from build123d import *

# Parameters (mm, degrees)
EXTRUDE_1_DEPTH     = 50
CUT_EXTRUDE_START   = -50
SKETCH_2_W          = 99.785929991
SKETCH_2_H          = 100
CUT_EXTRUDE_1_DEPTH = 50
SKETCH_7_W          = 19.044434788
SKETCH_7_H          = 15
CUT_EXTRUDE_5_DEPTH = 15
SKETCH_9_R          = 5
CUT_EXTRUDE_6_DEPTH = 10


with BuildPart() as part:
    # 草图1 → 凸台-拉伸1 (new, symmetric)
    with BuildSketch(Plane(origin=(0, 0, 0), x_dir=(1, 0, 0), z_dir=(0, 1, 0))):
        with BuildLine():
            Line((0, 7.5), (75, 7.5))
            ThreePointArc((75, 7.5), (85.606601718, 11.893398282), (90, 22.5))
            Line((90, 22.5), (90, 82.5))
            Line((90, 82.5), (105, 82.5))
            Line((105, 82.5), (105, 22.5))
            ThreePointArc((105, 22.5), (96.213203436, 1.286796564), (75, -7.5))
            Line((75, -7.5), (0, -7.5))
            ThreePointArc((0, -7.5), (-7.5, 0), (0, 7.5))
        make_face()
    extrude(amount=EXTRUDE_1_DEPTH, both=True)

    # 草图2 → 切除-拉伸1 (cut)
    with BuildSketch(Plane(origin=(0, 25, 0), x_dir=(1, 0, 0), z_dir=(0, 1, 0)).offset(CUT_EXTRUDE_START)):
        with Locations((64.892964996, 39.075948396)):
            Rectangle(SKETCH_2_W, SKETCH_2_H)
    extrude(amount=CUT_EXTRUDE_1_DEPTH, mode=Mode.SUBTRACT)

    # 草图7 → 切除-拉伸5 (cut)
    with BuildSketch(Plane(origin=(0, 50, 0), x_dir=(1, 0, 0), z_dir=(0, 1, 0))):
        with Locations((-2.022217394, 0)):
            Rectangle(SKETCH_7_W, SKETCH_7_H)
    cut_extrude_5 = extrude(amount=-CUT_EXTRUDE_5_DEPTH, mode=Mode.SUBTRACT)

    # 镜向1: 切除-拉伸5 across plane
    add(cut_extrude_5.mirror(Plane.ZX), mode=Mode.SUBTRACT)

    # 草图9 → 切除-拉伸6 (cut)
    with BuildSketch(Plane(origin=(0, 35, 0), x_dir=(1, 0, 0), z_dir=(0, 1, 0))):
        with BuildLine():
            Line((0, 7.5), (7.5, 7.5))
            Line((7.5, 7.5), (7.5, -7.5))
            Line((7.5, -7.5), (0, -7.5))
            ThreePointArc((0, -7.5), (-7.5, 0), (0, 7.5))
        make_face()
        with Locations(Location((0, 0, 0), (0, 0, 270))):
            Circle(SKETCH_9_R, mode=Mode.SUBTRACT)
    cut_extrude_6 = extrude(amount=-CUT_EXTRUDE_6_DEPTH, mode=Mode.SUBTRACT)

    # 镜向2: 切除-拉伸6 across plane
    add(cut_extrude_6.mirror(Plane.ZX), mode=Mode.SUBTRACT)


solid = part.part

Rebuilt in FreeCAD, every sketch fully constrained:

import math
import FreeCAD as App
import Part
import Sketcher
from FreeCAD import Vector
Q = App.Units.Quantity


def add_polygon(sketch, points):
    """Adds a closed chain of lines whose ends are joined by coincident constraints."""
    first, n = sketch.GeometryCount, len(points)
    for a, b in zip(points, points[1:] + points[:1]):
        sketch.addGeometry(Part.LineSegment(App.Vector(*a, 0), App.Vector(*b, 0)), False)
    for i in range(n):
        sketch.addConstraint(Sketcher.Constraint("Coincident", first + i, 2, first + (i + 1) % n, 1))

doc = App.newDocument("Part")
body = doc.addObject("PartDesign::Body", "Body")

sketch1 = body.newObject("Sketcher::SketchObject", "Sketch")
sketch1.AttachmentSupport = (doc.getObject("XZ_Plane"), [""])
sketch1.MapMode = "FlatFace"
sketch1.addGeometry([
    Part.LineSegment(Vector(75, -8, 0), Vector(0, -8, 0)),
    Part.ArcOfCircle(Part.Circle(Vector(0, 0, 0), Vector(0, 0, 1), 8), math.radians(90), math.radians(270)),
    Part.LineSegment(Vector(0, 8, 0), Vector(75, 8, 0)),
    Part.ArcOfCircle(Part.Circle(Vector(75, -22, 0), Vector(0, 0, 1), 30), math.radians(0), math.radians(90)),
    Part.LineSegment(Vector(105, -22, 0), Vector(105, -82, 0)),
    Part.LineSegment(Vector(105, -82, 0), Vector(90, -82, 0)),
    Part.LineSegment(Vector(90, -82, 0), Vector(90, -22, 0)),
    Part.ArcOfCircle(Part.Circle(Vector(75, -22, 0), Vector(0, 0, 1), 15), math.radians(0), math.radians(90)),
], False)
sketch1.addConstraint([
    Sketcher.Constraint("Tangent", 0, 2, 1, 2),
    Sketcher.Constraint("Tangent", 1, 1, 2, 1),
    Sketcher.Constraint("Tangent", 2, 2, 3, 2),
    Sketcher.Constraint("Tangent", 3, 1, 4, 1),
    Sketcher.Constraint("Coincident", 4, 2, 5, 1),
    Sketcher.Constraint("Coincident", 5, 2, 6, 1),
    Sketcher.Constraint("Tangent", 6, 2, 7, 1),
    Sketcher.Constraint("Tangent", 7, 2, 0, 1),
    Sketcher.Constraint("Horizontal", 0),
    Sketcher.Constraint("Horizontal", 2),
    Sketcher.Constraint("Vertical", 4),
    Sketcher.Constraint("Horizontal", 5),
    Sketcher.Constraint("Vertical", 6),
    Sketcher.Constraint("Coincident", 1, 3, -1, 1),
    Sketcher.Constraint("Coincident", 7, 3, 3, 3),
    Sketcher.Constraint("Radius", 3, Q("30 mm")),
    Sketcher.Constraint("Radius", 7, Q("15 mm")),
    Sketcher.Constraint("DistanceX", 0, 2, 0, 1, Q("75 mm")),
    Sketcher.Constraint("DistanceY", 4, 2, 4, 1, Q("60 mm")),
])
pad1 = body.newObject("PartDesign::Pad", "Pad")
pad1.Profile = sketch1
pad1.Length = 100
pad1.Midplane = True

sketch2 = body.newObject("Sketcher::SketchObject", "Sketch001")
sketch2.AttachmentSupport = (doc.getObject("XZ_Plane"), [""])
sketch2.MapMode = "FlatFace"
sketch2.AttachmentOffset = App.Placement(Vector(0, 0, 25), App.Rotation())
add_polygon(sketch2, [(15, -89), (15, 11), (115, 11), (115, -89)])
sketch2.addConstraint([
    Sketcher.Constraint("Vertical", 0),
    Sketcher.Constraint("Horizontal", 1),
    Sketcher.Constraint("Vertical", 2),
    Sketcher.Constraint("Horizontal", 3),
    Sketcher.Constraint("DistanceY", 0, 1, 0, 2, Q("100 mm")),
    Sketcher.Constraint("DistanceX", -1, 1, 0, 2, Q("15 mm")),
    Sketcher.Constraint("DistanceX", 1, 1, 1, 2, Q("99.78593 mm")),
    Sketcher.Constraint("DistanceY", -1, 1, 0, 2, Q("10.924052 mm")),
])
pocket1 = body.newObject("PartDesign::Pocket", "Pocket")
pocket1.Profile = sketch2
pocket1.Length = 50

sketch3 = body.newObject("Sketcher::SketchObject", "Sketch002")
sketch3.AttachmentSupport = (doc.getObject("XZ_Plane"), [""])
sketch3.MapMode = "FlatFace"
sketch3.AttachmentOffset = App.Placement(Vector(0, 0, -50), App.Rotation())
add_polygon(sketch3, [(-12, -8), (-12, 8), (8, 8), (8, -8)])
sketch3.addConstraint([
    Sketcher.Constraint("Vertical", 0),
    Sketcher.Constraint("Horizontal", 1),
    Sketcher.Constraint("Vertical", 2),
    Sketcher.Constraint("Horizontal", 3),
    Sketcher.Constraint("DistanceY", 0, 1, 0, 2, Q("15 mm")),
    Sketcher.Constraint("DistanceY", -1, 1, 0, 2, Q("7.5 mm")),
    Sketcher.Constraint("DistanceX", -1, 1, 1, 2, Q("7.5 mm")),
    Sketcher.Constraint("DistanceX", 1, 1, 1, 2, Q("19.044435 mm")),
])
pocket2 = body.newObject("PartDesign::Pocket", "Pocket001")
pocket2.Profile = sketch3
pocket2.Length = 15
pocket2.Reversed = True
doc.recompute()

mirrored = body.newObject("PartDesign::Mirrored", "Mirrored")
mirrored.Originals = [pocket2]
mirrored.MirrorPlane = (doc.getObject("XZ_Plane"), [""])
body.Tip = mirrored

sketch4 = body.newObject("Sketcher::SketchObject", "Sketch003")
sketch4.AttachmentSupport = (doc.getObject("XZ_Plane"), [""])
sketch4.MapMode = "FlatFace"
sketch4.AttachmentOffset = App.Placement(Vector(0, 0, -35), App.Rotation())
sketch4.addGeometry([
    Part.LineSegment(Vector(8, -8, 0), Vector(0, -8, 0)),
    Part.ArcOfCircle(Part.Circle(Vector(0, 0, 0), Vector(0, 0, 1), 8), math.radians(90), math.radians(270)),
    Part.LineSegment(Vector(0, 8, 0), Vector(8, 8, 0)),
    Part.LineSegment(Vector(8, 8, 0), Vector(8, -8, 0)),
    Part.Circle(Vector(0, 0, 0), Vector(0, 0, 1), 5),
], False)
sketch4.addConstraint([
    Sketcher.Constraint("Tangent", 0, 2, 1, 2),
    Sketcher.Constraint("Tangent", 1, 1, 2, 1),
    Sketcher.Constraint("Coincident", 2, 2, 3, 1),
    Sketcher.Constraint("Coincident", 3, 2, 0, 1),
    Sketcher.Constraint("Horizontal", 0),
    Sketcher.Constraint("Horizontal", 2),
    Sketcher.Constraint("Vertical", 3),
    Sketcher.Constraint("Coincident", 1, 3, -1, 1),
    Sketcher.Constraint("Coincident", 4, 3, -1, 1),
    Sketcher.Constraint("Diameter", 4, Q("10 mm")),
    Sketcher.Constraint("Radius", 1, Q("7.5 mm")),
    Sketcher.Constraint("DistanceX", 0, 2, 0, 1, Q("7.5 mm")),
])
pocket3 = body.newObject("PartDesign::Pocket", "Pocket002")
pocket3.Profile = sketch4
pocket3.Length = 10
pocket3.Reversed = True
doc.recompute()

mirrored2 = body.newObject("PartDesign::Mirrored", "Mirrored001")
mirrored2.Originals = [pocket3]
mirrored2.MirrorPlane = (doc.getObject("XZ_Plane"), [""])
body.Tip = mirrored2

doc.recompute()
